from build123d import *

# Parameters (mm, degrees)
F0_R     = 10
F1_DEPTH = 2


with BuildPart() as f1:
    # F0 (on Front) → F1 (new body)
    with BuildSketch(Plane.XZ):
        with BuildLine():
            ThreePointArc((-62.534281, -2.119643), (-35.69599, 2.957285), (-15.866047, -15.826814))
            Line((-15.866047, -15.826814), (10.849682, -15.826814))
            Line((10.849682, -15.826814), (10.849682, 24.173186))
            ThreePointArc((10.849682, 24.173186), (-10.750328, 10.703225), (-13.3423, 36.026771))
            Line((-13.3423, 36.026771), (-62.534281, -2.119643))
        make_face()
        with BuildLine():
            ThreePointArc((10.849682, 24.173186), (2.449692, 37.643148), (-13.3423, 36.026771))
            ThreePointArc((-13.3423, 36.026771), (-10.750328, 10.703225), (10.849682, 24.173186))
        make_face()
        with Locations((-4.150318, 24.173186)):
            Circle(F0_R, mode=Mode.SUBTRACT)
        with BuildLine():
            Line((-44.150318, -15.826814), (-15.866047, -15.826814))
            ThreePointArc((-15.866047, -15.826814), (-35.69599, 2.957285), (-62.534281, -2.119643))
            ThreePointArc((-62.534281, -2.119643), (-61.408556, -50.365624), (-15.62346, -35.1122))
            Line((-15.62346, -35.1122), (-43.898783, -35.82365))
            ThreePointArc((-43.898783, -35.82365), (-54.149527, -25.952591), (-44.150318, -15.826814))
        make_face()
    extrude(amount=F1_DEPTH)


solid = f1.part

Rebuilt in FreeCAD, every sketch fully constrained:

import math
import FreeCAD as App
import Part
import Sketcher
from FreeCAD import Vector
Q = App.Units.Quantity

doc = App.newDocument("Part")
body = doc.addObject("PartDesign::Body", "Body")

# Sketch on XZ plane
sketch1 = doc.addObject("Sketcher::SketchObject", "Sketch")
body.addObject(sketch1)
sketch1.AttachmentSupport = (doc.XZ_Plane, [""])
sketch1.MapMode = "FlatFace"
sketch1.addGeometry([
    Part.LineSegment(Vector(-13, 36, 0), Vector(-63, -2, 0)),  # 0
    Part.ArcOfCircle(Part.Circle(Vector(-44, -26, 0), Vector(0, 0, 1), 30), math.radians(128), math.radians(342)),  # 1
    Part.LineSegment(Vector(-16, -35, 0), Vector(-44, -36, 0)),  # 2
    Part.ArcOfCircle(Part.Circle(Vector(-44, -26, 0), Vector(0, 0, 1), 10), math.radians(90), math.radians(271)),  # 3
    Part.LineSegment(Vector(-44, -16, 0), Vector(11, -16, 0)),  # 4
    Part.LineSegment(Vector(11, -16, 0), Vector(11, 24, 0)),  # 5
    Part.ArcOfCircle(Part.Circle(Vector(-4, 24, 0), Vector(0, 0, 1), 15), math.radians(0), math.radians(128)),  # 6
    Part.Circle(Vector(-4, 24, 0), Vector(0, 0, 1), 10),  # 7
], False)
sketch1.addConstraint([
    Sketcher.Constraint("Tangent", 0, 2, 1, 1),
    Sketcher.Constraint("Coincident", 1, 2, 2, 1),
    Sketcher.Constraint("Tangent", 2, 2, 3, 2),
    Sketcher.Constraint("Tangent", 3, 1, 4, 1),
    Sketcher.Constraint("Coincident", 4, 2, 5, 1),
    Sketcher.Constraint("Tangent", 5, 2, 6, 1),
    Sketcher.Constraint("Tangent", 6, 2, 0, 1),
    Sketcher.Constraint("Horizontal", 4),
    Sketcher.Constraint("Vertical", 5),
    Sketcher.Constraint("Coincident", 3, 3, 1, 3),
    Sketcher.Constraint("Coincident", 7, 3, 6, 3),
    Sketcher.Constraint("Equal", 3, 7),
    Sketcher.Constraint("Diameter", 7, Q("20 mm")),
    Sketcher.Constraint("Radius", 1, Q("30 mm")),
    Sketcher.Constraint("Radius", 6, Q("15 mm")),
    Sketcher.Constraint("DistanceX", 4, 1, 4, 2, Q("55 mm")),
    Sketcher.Constraint("DistanceY", 5, 1, 5, 2, Q("40 mm")),
    Sketcher.Constraint("DistanceY", 1, 2, -1, 1, Q("35.1122 mm")),
    Sketcher.Constraint("DistanceX", 6, 2, -1, 1, Q("13.3423 mm")),
    Sketcher.Constraint("DistanceX", 1, 2, -1, 1, Q("15.62346 mm")),
])
pad1 = doc.addObject("PartDesign::Pad", "Pad")
body.addObject(pad1)
pad1.Profile = sketch1
pad1.Length = 2

doc.recompute()
